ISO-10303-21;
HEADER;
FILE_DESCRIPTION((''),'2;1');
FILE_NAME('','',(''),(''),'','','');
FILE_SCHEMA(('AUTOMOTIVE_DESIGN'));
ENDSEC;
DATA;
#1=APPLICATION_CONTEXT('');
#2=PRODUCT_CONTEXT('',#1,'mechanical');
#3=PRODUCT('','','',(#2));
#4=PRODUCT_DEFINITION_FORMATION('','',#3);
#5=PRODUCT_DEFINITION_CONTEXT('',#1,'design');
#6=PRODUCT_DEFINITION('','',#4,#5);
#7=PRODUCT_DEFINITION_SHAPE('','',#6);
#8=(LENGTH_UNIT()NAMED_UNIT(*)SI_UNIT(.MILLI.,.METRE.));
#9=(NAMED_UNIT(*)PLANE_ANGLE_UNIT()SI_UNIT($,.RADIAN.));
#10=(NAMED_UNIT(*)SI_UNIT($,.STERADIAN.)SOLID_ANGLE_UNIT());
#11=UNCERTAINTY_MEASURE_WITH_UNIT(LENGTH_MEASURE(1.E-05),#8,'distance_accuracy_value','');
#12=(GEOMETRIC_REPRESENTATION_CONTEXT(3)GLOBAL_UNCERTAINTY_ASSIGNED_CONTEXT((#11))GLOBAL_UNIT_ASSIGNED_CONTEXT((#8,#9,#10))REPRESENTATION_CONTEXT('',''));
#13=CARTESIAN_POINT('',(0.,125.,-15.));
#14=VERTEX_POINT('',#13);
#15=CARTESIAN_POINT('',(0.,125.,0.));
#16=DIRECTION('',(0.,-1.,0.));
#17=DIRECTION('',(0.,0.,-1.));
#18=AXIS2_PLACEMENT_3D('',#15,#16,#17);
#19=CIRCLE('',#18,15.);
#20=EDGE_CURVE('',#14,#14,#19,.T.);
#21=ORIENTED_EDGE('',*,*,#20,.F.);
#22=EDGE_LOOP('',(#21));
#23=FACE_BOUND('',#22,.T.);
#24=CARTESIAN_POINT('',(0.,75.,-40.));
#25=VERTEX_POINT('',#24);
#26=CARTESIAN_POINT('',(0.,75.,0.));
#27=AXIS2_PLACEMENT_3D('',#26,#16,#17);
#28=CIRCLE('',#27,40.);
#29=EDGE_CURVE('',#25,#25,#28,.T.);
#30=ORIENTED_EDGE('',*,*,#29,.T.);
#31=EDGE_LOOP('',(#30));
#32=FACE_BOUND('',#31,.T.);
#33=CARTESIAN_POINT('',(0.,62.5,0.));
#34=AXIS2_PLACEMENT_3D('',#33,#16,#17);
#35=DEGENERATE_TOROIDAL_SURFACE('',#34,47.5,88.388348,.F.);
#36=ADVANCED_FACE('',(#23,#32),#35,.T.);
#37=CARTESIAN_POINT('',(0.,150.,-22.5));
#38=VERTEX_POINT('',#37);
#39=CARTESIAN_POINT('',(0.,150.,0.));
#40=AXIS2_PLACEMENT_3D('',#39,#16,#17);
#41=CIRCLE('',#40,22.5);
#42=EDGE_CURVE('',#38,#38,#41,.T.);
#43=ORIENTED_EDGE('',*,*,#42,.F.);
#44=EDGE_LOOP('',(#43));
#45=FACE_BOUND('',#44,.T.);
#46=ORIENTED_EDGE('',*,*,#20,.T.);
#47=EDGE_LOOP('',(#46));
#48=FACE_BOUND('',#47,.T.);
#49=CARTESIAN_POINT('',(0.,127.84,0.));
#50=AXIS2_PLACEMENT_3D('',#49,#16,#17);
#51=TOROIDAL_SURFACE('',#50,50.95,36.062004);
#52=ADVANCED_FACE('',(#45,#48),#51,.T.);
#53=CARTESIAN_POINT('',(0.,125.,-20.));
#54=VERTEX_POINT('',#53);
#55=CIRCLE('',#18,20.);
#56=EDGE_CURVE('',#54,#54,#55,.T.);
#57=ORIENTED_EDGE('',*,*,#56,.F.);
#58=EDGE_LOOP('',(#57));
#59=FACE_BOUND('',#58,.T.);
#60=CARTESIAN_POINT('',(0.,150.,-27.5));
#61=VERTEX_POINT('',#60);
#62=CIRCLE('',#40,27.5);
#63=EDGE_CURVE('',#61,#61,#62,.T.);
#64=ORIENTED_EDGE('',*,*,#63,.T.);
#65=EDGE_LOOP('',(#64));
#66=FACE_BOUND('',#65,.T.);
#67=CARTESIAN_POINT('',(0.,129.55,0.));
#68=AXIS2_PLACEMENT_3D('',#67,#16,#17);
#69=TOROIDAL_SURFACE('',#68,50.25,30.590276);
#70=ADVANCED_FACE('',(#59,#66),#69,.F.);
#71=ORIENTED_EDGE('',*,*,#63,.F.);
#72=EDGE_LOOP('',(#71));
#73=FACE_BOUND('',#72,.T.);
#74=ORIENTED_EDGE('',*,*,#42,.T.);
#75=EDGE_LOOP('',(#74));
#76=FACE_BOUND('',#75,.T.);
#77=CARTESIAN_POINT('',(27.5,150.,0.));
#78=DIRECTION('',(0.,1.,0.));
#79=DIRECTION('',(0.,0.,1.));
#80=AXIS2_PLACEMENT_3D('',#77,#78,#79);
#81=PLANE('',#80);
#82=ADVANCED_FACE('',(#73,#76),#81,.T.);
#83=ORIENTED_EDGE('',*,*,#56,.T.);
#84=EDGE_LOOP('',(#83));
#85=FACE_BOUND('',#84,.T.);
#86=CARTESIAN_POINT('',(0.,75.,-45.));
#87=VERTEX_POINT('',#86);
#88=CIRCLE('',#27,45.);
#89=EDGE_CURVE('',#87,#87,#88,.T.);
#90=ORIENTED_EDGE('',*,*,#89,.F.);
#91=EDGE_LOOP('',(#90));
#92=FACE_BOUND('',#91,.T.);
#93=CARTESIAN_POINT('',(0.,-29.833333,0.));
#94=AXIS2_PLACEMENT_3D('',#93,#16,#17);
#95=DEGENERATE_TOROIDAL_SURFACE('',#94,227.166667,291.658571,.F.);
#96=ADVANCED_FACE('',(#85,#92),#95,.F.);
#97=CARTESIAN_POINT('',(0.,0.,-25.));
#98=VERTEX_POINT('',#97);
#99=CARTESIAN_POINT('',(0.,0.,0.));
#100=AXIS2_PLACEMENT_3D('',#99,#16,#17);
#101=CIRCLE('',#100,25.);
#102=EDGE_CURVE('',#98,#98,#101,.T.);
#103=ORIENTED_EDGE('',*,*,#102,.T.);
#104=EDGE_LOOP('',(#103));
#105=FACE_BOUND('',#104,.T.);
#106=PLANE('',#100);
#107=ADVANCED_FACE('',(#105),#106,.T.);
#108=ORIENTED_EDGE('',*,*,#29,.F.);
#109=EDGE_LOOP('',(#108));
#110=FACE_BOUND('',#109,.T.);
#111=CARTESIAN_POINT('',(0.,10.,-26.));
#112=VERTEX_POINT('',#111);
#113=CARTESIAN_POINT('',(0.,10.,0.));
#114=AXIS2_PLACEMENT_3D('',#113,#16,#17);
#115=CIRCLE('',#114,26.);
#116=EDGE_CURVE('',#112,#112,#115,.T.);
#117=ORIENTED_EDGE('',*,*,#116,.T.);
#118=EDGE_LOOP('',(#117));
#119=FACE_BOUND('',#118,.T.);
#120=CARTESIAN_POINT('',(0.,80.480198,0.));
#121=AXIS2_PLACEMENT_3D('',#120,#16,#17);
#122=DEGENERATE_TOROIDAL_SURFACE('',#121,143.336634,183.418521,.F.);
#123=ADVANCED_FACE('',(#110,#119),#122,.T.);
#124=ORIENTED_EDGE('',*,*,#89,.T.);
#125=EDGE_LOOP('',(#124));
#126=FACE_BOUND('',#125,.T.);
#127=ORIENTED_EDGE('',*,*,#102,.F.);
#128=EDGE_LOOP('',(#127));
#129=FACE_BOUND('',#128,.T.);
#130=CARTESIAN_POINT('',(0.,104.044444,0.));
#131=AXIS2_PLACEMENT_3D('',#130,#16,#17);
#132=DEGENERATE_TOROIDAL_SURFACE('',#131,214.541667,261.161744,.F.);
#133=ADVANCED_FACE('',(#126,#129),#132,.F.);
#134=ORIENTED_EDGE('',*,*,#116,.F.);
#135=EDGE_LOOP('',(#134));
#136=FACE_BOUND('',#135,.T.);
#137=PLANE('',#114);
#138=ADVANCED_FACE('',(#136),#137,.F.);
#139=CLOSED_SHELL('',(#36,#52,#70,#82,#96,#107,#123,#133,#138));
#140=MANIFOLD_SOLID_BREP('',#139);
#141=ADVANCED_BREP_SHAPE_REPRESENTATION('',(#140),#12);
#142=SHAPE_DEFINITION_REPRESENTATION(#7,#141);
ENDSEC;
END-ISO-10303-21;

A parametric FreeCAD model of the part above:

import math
import FreeCAD as App
import Part
import Sketcher

V = App.Vector
Q = App.Units.Quantity

doc = App.newDocument("Part")
params = doc.addObject("Spreadsheet::Sheet", "Params")
for row, (alias, value) in enumerate([
    ("sketch1_width", "25 mm"),
    ("sketch1_height", "150 mm"),
    ("sketch1_width2", "27.5 mm"),
    ("revolution_angle", "360 deg"),
    ("sketch2_width", "26 mm"),
    ("sketch2_height", "140 mm"),
    ("sketch2_width2", "22.5 mm"),
    ("groove_angle", "360 deg"),
], start=1):
    params.set(f"A{row}", alias)
    params.set(f"B{row}", "=" + value)
    params.setAlias(f"B{row}", alias)

body = doc.addObject("PartDesign::Body", "Body")

sketch1 = body.newObject("Sketcher::SketchObject", "Sketch")
sketch1.AttachmentSupport = (doc.getObject("XY_Plane"), [""])
sketch1.MapMode = "FlatFace"
sketch1.addGeometry(Part.LineSegment(V(0, 0, 0), V(25, 0, 0)), False)
sketch1.addGeometry(Part.ArcOfCircle(Part.Circle(V(-214.541667, 104.044444, 0), V(0, 0, 1), 261.161744), math.radians(-23.47762), math.radians(-6.385214)), False)
sketch1.addGeometry(Part.ArcOfCircle(Part.Circle(V(-227.166667, -29.833333, 0), V(0, 0, 1), 291.658571), math.radians(21.065719), math.radians(32.064383)), False)
sketch1.addGeometry(Part.ArcOfCircle(Part.Circle(V(50.25, 129.55, 0), V(0, 0, 1), 30.590276), math.radians(138.047592), math.radians(188.553919)), False)
sketch1.addGeometry(Part.LineSegment(V(27.5, 150, 0), V(0, 150, 0)), False)
sketch1.addGeometry(Part.LineSegment(V(0, 150, 0), V(0, 0, 0)), False)
sketch1.addConstraint(Sketcher.Constraint("Coincident", 0, 2, 1, 1))
sketch1.addConstraint(Sketcher.Constraint("Coincident", 1, 2, 2, 1))
sketch1.addConstraint(Sketcher.Constraint("Coincident", 2, 2, 3, 2))
sketch1.addConstraint(Sketcher.Constraint("Coincident", 3, 1, 4, 1))
sketch1.addConstraint(Sketcher.Constraint("Coincident", 4, 2, 5, 1))
sketch1.addConstraint(Sketcher.Constraint("Coincident", 5, 2, 0, 1))
sketch1.addConstraint(Sketcher.Constraint("Horizontal", 0))
sketch1.addConstraint(Sketcher.Constraint("Horizontal", 4))
sketch1.addConstraint(Sketcher.Constraint("Vertical", 5))
sketch1.addConstraint(Sketcher.Constraint("Coincident", 5, 2, -1, 1))
sketch1.addConstraint(Sketcher.Constraint("DistanceX", 0, 1, 0, 2, Q("25 mm")))
sketch1.addConstraint(Sketcher.Constraint("DistanceY", 5, 2, 5, 1, Q("150 mm")))
sketch1.addConstraint(Sketcher.Constraint("DistanceX", 4, 2, 4, 1, Q("27.5 mm")))
sketch1.addConstraint(Sketcher.Constraint("DistanceX", -1, 1, 1, 2, Q("45 mm")))
sketch1.addConstraint(Sketcher.Constraint("DistanceY", -1, 1, 1, 2, Q("75 mm")))
sketch1.addConstraint(Sketcher.Constraint("DistanceX", -1, 1, 2, 2, Q("20 mm")))
sketch1.addConstraint(Sketcher.Constraint("DistanceX", -1, 1, 3, 3, Q("50.25 mm")))
sketch1.addConstraint(Sketcher.Constraint("DistanceY", -1, 1, 3, 3, Q("129.55 mm")))
sketch1.addConstraint(Sketcher.Constraint("Radius", 2, Q("291.658571 mm")))
sketch1.addConstraint(Sketcher.Constraint("Radius", 1, Q("261.161744 mm")))
sketch1.setExpression("Constraints[10]", "Params.sketch1_width")
sketch1.setExpression("Constraints[11]", "Params.sketch1_height")
sketch1.setExpression("Constraints[12]", "Params.sketch1_width2")
revolution = body.newObject("PartDesign::Revolution", "Revolution")
revolution.Profile = sketch1
revolution.ReferenceAxis = (sketch1, ["V_Axis"])
revolution.setExpression("Angle", "Params.revolution_angle")

sketch2 = body.newObject("Sketcher::SketchObject", "Sketch001")
sketch2.AttachmentSupport = (doc.getObject("XY_Plane"), [""])
sketch2.MapMode = "FlatFace"
sketch2.addGeometry(Part.LineSegment(V(0, 10, 0), V(26, 10, 0)), False)
sketch2.addGeometry(Part.ArcOfCircle(Part.Circle(V(-143.336634, 80.480198, 0), V(0, 0, 1), 183.418521), math.radians(-22.597739), math.radians(-1.712144)), False)
sketch2.addGeometry(Part.ArcOfCircle(Part.Circle(V(-47.5, 62.5, 0), V(0, 0, 1), 88.388348), math.radians(8.130102), math.radians(45)), False)
sketch2.addGeometry(Part.ArcOfCircle(Part.Circle(V(50.95, 127.84, 0), V(0, 0, 1), 36.062004), math.radians(142.084605), math.radians(184.516906)), False)
sketch2.addGeometry(Part.LineSegment(V(22.5, 150, 0), V(0, 150, 0)), False)
sketch2.addGeometry(Part.LineSegment(V(0, 150, 0), V(0, 10, 0)), False)
sketch2.addConstraint(Sketcher.Constraint("Coincident", 0, 2, 1, 1))
sketch2.addConstraint(Sketcher.Constraint("Coincident", 1, 2, 2, 1))
sketch2.addConstraint(Sketcher.Constraint("Coincident", 2, 2, 3, 2))
sketch2.addConstraint(Sketcher.Constraint("Coincident", 3, 1, 4, 1))
sketch2.addConstraint(Sketcher.Constraint("Coincident", 4, 2, 5, 1))
sketch2.addConstraint(Sketcher.Constraint("Coincident", 5, 2, 0, 1))
sketch2.addConstraint(Sketcher.Constraint("Horizontal", 0))
sketch2.addConstraint(Sketcher.Constraint("Horizontal", 4))
sketch2.addConstraint(Sketcher.Constraint("Vertical", 5))
sketch2.addConstraint(Sketcher.Constraint("PointOnObject", 4, 2, -2))
sketch2.addConstraint(Sketcher.Constraint("DistanceX", 0, 1, 0, 2, Q("26 mm")))
sketch2.addConstraint(Sketcher.Constraint("DistanceY", 5, 2, 5, 1, Q("140 mm")))
sketch2.addConstraint(Sketcher.Constraint("DistanceX", 4, 2, 4, 1, Q("22.5 mm")))
sketch2.addConstraint(Sketcher.Constraint("DistanceY", -1, 1, 0, 2, Q("10 mm")))
sketch2.addConstraint(Sketcher.Constraint("DistanceX", -1, 1, 1, 2, Q("40 mm")))
sketch2.addConstraint(Sketcher.Constraint("DistanceY", -1, 1, 1, 2, Q("75 mm")))
sketch2.addConstraint(Sketcher.Constraint("DistanceX", -1, 1, 2, 2, Q("15 mm")))
sketch2.addConstraint(Sketcher.Constraint("DistanceY", -1, 1, 2, 2, Q("125 mm")))
sketch2.addConstraint(Sketcher.Constraint("DistanceX", 2, 3, 3, 1, Q("70 mm")))
sketch2.addConstraint(Sketcher.Constraint("DistanceX", -1, 1, 3, 3, Q("50.95 mm")))
sketch2.addConstraint(Sketcher.Constraint("Radius", 1, Q("183.418521 mm")))
sketch2.setExpression("Constraints[10]", "Params.sketch2_width")
sketch2.setExpression("Constraints[11]", "Params.sketch2_height")
sketch2.setExpression("Constraints[12]", "Params.sketch2_width2")
groove = body.newObject("PartDesign::Groove", "Groove")
groove.Profile = sketch2
groove.ReferenceAxis = (sketch2, ["V_Axis"])
groove.setExpression("Angle", "Params.groove_angle")

doc.recompute()
